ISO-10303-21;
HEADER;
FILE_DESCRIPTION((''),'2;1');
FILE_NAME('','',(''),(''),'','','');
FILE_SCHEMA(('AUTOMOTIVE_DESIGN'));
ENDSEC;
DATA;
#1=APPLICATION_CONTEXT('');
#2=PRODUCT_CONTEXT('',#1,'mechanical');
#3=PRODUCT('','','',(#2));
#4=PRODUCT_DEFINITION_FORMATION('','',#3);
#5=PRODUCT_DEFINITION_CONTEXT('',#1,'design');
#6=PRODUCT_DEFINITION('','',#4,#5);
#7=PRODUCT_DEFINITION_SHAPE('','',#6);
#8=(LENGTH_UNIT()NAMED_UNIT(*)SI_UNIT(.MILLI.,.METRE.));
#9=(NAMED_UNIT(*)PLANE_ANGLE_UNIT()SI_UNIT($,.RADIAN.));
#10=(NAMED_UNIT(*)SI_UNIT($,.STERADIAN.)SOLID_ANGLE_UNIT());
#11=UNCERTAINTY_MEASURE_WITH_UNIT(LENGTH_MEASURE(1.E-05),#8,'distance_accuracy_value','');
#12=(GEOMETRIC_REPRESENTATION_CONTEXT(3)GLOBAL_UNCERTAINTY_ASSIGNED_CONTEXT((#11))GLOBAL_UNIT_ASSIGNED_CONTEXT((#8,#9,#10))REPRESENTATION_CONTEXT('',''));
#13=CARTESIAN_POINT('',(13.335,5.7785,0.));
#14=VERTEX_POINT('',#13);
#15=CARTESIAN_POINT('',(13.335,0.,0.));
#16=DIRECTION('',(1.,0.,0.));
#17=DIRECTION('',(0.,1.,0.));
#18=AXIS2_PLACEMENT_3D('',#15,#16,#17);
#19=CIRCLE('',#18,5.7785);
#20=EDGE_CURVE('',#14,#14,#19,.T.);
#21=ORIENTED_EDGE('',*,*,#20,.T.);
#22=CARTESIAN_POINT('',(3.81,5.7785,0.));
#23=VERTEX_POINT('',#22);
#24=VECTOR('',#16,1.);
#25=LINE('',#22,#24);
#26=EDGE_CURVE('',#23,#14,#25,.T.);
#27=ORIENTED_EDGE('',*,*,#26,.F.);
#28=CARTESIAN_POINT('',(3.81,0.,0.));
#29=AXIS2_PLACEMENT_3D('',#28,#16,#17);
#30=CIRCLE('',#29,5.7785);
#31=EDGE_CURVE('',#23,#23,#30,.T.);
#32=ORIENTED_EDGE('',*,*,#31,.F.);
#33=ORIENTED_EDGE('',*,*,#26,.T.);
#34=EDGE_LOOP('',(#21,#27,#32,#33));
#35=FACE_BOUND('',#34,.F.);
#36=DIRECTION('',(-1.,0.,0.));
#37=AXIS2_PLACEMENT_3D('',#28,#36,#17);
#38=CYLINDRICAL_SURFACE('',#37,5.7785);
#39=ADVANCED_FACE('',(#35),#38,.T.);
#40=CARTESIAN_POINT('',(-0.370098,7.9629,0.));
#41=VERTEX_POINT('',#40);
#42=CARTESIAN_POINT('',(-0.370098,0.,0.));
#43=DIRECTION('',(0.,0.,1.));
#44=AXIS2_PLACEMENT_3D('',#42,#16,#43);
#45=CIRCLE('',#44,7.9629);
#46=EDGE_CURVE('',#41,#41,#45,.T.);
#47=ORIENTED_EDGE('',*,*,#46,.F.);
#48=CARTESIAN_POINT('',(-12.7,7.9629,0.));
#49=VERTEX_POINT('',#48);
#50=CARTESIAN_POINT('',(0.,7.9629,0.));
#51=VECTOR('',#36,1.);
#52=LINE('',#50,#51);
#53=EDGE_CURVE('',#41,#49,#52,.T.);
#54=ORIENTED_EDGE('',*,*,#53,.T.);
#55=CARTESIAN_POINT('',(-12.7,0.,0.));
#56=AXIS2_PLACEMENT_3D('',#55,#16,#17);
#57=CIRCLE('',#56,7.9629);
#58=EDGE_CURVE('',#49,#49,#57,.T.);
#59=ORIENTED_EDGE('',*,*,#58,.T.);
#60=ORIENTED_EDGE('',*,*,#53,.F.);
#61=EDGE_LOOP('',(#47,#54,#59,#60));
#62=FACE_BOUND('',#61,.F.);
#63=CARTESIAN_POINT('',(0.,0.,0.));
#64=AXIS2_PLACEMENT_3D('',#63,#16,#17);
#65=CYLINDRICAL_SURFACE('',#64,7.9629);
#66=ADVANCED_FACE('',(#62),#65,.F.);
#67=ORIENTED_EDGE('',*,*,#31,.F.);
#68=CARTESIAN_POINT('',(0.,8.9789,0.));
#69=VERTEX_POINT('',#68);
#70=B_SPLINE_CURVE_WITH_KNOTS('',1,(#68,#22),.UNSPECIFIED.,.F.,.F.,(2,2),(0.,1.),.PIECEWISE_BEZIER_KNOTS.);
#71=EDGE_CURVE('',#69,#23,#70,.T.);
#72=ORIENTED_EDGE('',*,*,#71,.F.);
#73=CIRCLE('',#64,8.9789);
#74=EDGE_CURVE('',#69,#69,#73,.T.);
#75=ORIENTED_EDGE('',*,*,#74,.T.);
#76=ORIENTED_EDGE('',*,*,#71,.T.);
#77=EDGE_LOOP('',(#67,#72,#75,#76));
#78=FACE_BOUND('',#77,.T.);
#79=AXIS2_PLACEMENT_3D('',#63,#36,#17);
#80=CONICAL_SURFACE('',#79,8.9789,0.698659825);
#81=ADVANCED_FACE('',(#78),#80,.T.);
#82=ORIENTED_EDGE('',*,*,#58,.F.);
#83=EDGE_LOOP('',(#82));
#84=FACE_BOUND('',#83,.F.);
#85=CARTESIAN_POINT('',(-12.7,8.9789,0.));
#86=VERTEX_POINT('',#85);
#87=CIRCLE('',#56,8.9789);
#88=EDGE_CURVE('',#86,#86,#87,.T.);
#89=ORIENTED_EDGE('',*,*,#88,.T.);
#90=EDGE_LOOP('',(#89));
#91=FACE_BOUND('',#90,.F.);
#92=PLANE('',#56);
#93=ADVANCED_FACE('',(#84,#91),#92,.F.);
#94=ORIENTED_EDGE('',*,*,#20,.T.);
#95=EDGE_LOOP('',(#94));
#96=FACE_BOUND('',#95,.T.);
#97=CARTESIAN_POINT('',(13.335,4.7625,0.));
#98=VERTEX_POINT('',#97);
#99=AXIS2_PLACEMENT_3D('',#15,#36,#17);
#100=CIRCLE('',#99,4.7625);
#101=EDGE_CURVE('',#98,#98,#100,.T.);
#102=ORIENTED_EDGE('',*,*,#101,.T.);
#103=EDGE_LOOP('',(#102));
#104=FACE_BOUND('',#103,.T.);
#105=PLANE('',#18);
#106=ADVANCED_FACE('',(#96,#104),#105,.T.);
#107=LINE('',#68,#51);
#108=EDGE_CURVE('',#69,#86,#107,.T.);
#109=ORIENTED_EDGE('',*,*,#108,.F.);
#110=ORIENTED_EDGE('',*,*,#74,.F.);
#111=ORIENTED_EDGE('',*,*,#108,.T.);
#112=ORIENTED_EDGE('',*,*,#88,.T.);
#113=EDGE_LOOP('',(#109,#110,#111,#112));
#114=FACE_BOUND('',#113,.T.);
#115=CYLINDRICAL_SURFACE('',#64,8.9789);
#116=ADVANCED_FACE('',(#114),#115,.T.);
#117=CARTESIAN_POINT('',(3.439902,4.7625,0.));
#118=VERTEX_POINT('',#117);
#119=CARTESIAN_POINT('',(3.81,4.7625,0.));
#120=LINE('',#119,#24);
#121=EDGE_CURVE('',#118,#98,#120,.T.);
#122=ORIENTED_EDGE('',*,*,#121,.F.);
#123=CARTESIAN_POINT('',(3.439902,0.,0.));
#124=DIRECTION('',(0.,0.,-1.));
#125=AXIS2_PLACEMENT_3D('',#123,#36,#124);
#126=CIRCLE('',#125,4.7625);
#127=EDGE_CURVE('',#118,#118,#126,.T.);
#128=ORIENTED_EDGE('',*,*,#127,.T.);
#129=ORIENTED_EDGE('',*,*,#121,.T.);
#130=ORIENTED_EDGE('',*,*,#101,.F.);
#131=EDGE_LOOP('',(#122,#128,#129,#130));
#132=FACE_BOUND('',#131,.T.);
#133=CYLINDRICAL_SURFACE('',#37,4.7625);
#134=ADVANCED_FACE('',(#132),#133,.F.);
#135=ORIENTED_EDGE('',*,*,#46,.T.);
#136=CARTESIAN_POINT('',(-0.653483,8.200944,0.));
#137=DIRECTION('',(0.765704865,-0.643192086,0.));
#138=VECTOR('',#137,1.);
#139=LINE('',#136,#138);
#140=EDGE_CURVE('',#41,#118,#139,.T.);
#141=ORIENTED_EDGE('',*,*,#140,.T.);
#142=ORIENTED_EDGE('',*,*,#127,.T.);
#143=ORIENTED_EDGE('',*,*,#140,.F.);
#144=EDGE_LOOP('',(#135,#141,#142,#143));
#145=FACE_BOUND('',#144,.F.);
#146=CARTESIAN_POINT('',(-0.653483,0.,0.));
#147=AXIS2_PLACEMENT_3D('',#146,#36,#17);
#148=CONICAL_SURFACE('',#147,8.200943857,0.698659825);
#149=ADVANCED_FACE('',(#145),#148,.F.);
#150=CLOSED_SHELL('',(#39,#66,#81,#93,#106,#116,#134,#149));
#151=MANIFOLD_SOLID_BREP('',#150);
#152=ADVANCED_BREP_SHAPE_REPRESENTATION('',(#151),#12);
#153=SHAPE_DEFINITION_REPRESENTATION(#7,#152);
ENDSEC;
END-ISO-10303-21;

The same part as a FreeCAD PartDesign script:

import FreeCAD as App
import Part
import Sketcher

V = App.Vector
Q = App.Units.Quantity


def faces_at(feature, points):
    """Names of the faces that lie closest to the given points."""
    faces = feature.Shape.Faces
    near = lambda p: min(range(len(faces)), key=lambda i: faces[i].distToShape(Part.Vertex(*p))[0])
    return sorted({f"Face{near(p) + 1}" for p in points})

doc = App.newDocument("Part")
body = doc.addObject("PartDesign::Body", "Body")

# Sketch on YZ plane
sketch1 = body.newObject("Sketcher::SketchObject", "Sketch")
sketch1.AttachmentSupport = (doc.getObject("YZ_Plane"), [""])
sketch1.MapMode = "FlatFace"
sketch1.addGeometry(Part.Circle(V(0, 0, 0), V(0, 0, 1), 9), False)
sketch1.addConstraint([
    Sketcher.Constraint("Coincident", 0, 3, -1, 1),
    Sketcher.Constraint("Diameter", 0, Q("0.707 in")),
])
pad1 = body.newObject("PartDesign::Pad", "Pad")
pad1.Profile = sketch1
pad1.Length = Q("0.5 in")
pad1.Reversed = True
body2 = doc.addObject("PartDesign::Body", "Body001")

# Sketch on YZ plane
sketch2 = body2.newObject("Sketcher::SketchObject", "Sketch001")
sketch2.AttachmentSupport = (doc.getObject("YZ_Plane001"), [""])
sketch2.MapMode = "FlatFace"
sketch2.AttachmentOffset = App.Placement(V(0, 0, 0.15 * 25.4), App.Rotation())
sketch2.addGeometry(Part.Circle(V(0, 0, 0), V(0, 0, 1), 6), False)
sketch2.addConstraint([
    Sketcher.Constraint("Coincident", 0, 3, -1, 1),
    Sketcher.Constraint("Diameter", 0, Q("0.455 in")),
])
pad2 = body2.newObject("PartDesign::Pad", "Pad001")
pad2.Profile = sketch2
pad2.Length = Q("0.375 in")
body.AllowCompound = True
doc.recompute()

boolean = body.newObject("PartDesign::Boolean", "Boolean")
boolean.Type = "Fuse"
boolean.addObjects([body2])

# Sketch on YZ plane
sketch3 = body.newObject("Sketcher::SketchObject", "Sketch002")
sketch3.AttachmentSupport = (doc.getObject("YZ_Plane"), [""])
sketch3.MapMode = "FlatFace"
sketch3.addGeometry(Part.Circle(V(0, 0, 0), V(0, 0, 1), 9), False)
sketch3.addConstraint([
    Sketcher.Constraint("Coincident", 0, 3, -1, 1),
    Sketcher.Constraint("Diameter", 0, Q("0.707 in")),
])

# Sketch on YZ plane
sketch4 = body.newObject("Sketcher::SketchObject", "Sketch003")
sketch4.AttachmentSupport = (doc.getObject("YZ_Plane"), [""])
sketch4.MapMode = "FlatFace"
sketch4.AttachmentOffset = App.Placement(V(0, 0, 0.15 * 25.4), App.Rotation())
sketch4.addGeometry(Part.Circle(V(0, 0, 0), V(0, 0, 1), 6), False)
sketch4.addConstraint([
    Sketcher.Constraint("Coincident", 0, 3, -1, 1),
    Sketcher.Constraint("Diameter", 0, Q("0.455 in")),
])

additiveloft = body.newObject("PartDesign::AdditiveLoft", "AdditiveLoft")
additiveloft.Profile = sketch3
additiveloft.Sections = [sketch4]
doc.recompute()

thickness = body.newObject("PartDesign::Thickness", "Thickness")
thickness.Base = (additiveloft, faces_at(additiveloft, [(13.335, 0, 0), (-12.7, 0, 0)]))
thickness.Value = Q("0.04 in")
thickness.Reversed = True
thickness.Join = "Intersection"

doc.recompute()
